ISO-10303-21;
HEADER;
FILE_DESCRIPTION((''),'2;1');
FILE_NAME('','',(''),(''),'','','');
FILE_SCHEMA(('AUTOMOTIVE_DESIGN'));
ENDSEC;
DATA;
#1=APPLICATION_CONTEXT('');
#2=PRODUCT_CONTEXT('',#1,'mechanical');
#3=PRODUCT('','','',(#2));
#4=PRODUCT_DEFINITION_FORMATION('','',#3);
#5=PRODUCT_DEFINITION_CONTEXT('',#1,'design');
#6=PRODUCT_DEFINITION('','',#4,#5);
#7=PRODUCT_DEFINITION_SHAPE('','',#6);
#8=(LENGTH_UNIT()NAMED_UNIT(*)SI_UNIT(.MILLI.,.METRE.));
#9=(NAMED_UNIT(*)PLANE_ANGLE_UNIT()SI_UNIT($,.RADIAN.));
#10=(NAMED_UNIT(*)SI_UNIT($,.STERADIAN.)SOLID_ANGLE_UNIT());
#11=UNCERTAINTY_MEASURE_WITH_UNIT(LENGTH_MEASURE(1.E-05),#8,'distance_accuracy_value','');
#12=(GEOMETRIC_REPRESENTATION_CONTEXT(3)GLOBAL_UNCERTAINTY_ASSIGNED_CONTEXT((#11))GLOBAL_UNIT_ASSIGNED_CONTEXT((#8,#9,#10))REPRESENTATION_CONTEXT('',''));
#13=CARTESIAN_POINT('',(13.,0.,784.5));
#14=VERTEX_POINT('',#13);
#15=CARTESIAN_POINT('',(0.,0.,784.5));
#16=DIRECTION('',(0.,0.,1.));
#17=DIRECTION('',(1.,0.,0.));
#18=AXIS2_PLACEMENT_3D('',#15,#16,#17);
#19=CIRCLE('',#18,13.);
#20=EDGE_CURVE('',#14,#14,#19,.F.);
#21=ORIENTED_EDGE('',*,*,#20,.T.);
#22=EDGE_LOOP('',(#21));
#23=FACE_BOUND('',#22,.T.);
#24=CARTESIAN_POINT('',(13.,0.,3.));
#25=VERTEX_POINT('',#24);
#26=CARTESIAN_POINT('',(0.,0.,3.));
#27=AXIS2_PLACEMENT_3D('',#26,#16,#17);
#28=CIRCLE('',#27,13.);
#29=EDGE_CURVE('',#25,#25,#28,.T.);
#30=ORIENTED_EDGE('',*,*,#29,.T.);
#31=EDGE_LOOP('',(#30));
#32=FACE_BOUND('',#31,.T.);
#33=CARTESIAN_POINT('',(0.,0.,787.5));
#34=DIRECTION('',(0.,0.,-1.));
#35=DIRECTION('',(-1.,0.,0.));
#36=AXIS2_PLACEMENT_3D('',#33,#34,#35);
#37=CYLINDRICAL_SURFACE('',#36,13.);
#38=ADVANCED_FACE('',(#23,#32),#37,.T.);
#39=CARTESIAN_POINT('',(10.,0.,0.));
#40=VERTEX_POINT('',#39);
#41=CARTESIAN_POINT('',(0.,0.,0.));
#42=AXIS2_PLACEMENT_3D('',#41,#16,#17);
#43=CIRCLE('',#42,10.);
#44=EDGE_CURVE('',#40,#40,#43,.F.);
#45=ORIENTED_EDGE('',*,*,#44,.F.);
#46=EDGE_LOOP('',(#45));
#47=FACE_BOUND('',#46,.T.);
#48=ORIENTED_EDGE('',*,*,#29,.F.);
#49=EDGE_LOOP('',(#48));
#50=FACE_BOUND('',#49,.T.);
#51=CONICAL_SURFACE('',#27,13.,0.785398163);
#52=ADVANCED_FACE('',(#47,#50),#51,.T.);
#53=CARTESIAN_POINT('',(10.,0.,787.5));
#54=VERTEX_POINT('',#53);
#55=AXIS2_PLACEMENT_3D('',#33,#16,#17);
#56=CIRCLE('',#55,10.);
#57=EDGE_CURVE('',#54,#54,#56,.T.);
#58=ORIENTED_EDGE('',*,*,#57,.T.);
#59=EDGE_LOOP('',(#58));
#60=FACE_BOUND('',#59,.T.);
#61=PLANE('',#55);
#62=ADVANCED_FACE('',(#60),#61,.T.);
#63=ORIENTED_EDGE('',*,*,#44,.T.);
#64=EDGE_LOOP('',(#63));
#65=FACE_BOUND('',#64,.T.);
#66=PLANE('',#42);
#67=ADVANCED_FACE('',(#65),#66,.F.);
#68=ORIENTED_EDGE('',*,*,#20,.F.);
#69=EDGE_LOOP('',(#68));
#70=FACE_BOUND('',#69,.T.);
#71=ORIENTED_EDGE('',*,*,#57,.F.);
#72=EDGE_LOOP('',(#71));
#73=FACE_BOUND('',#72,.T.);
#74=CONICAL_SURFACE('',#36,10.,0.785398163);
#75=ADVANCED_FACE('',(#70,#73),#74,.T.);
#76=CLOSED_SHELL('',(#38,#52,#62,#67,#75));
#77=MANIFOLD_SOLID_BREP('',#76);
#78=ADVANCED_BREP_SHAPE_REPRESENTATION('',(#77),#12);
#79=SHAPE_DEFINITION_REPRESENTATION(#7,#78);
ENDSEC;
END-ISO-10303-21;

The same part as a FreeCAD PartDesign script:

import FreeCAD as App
import Part
import Sketcher
from FreeCAD import Vector
Q = App.Units.Quantity


def edges_at(feature, points):
    """Names of the edges that pass closest to the given points."""
    edges = feature.Shape.Edges
    near = lambda p: min(range(len(edges)), key=lambda i: edges[i].distToShape(Part.Vertex(*p))[0])
    return sorted({f"Edge{near(p) + 1}" for p in points})

doc = App.newDocument("Part")
body = doc.addObject("PartDesign::Body", "Body")

# Sketch on XY plane
sketch1 = body.newObject("Sketcher::SketchObject", "Sketch")
sketch1.AttachmentSupport = (doc.getObject("XY_Plane"), [""])
sketch1.MapMode = "FlatFace"
sketch1.addGeometry(Part.Circle(Vector(0, 0, 0), Vector(0, 0, 1), 13), False)
sketch1.addConstraint(Sketcher.Constraint("Coincident", 0, 3, -1, 1))
sketch1.addConstraint(Sketcher.Constraint("Diameter", 0, Q("26 mm")))
pad1 = body.newObject("PartDesign::Pad", "Pad")
pad1.Profile = sketch1
pad1.Length = 787.5
doc.recompute()

chamfer = body.newObject("PartDesign::Chamfer", "Chamfer")
chamfer.Base = (pad1, edges_at(pad1, [(-13, 0, 0), (-13, 0, 787.5)]))
chamfer.Size = 3

doc.recompute()
